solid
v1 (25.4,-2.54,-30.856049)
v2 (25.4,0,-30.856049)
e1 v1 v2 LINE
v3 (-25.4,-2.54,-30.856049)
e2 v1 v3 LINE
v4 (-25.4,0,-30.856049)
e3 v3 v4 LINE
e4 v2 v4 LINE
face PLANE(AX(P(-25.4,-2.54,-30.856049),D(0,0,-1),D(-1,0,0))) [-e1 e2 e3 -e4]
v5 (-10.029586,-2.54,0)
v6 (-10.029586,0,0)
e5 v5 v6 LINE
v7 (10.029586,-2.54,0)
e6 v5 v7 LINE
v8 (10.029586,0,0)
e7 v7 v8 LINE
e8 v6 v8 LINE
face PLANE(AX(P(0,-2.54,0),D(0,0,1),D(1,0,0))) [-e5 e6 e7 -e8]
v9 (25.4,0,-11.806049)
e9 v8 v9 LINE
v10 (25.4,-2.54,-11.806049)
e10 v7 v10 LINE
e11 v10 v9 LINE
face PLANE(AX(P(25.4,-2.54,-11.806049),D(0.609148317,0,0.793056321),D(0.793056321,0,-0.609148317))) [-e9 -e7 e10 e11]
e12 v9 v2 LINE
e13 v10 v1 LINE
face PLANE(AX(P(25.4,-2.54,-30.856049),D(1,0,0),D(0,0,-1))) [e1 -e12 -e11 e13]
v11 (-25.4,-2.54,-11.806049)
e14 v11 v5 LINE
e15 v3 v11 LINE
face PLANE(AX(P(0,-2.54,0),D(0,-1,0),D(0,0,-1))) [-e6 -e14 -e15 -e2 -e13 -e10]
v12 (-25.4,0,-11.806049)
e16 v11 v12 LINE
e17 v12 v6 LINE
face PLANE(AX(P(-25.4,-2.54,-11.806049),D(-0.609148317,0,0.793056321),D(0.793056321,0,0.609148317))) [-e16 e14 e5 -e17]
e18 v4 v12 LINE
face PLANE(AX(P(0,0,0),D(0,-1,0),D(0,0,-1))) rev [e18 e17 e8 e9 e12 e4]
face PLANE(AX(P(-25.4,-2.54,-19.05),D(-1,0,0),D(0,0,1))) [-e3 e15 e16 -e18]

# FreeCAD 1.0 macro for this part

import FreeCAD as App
import Part
import Sketcher
from FreeCAD import Vector
Q = App.Units.Quantity


def add_polygon(sketch, points):
    """Adds a closed chain of lines whose ends are joined by coincident constraints."""
    first, n = sketch.GeometryCount, len(points)
    for a, b in zip(points, points[1:] + points[:1]):
        sketch.addGeometry(Part.LineSegment(App.Vector(*a, 0), App.Vector(*b, 0)), False)
    for i in range(n):
        sketch.addConstraint(Sketcher.Constraint("Coincident", first + i, 2, first + (i + 1) % n, 1))

doc = App.newDocument("Part")
body = doc.addObject("PartDesign::Body", "Body")

# Sketch on XZ plane
sketch1 = doc.addObject("Sketcher::SketchObject", "Sketch")
body.addObject(sketch1)
sketch1.AttachmentSupport = (doc.XZ_Plane, [""])
sketch1.MapMode = "FlatFace"
add_polygon(sketch1, [(-10, 0), (10, 0), (25, -12), (25, -31), (-25, -31), (-25, -12)])  # lines 0-5
sketch1.addConstraint(Sketcher.Constraint("Horizontal", 0))
sketch1.addConstraint(Sketcher.Constraint("Vertical", 2))
sketch1.addConstraint(Sketcher.Constraint("Horizontal", 3))
sketch1.addConstraint(Sketcher.Constraint("Vertical", 4))
sketch1.addConstraint(Sketcher.Constraint("Symmetric", 0, 2, 5, 2, -1, 1))
sketch1.addConstraint(Sketcher.Constraint("Symmetric", 1, 2, 4, 2, -2))
sketch1.addConstraint(Sketcher.Constraint("DistanceX", 3, 2, 3, 1, Q("2 in")))
sketch1.addConstraint(Sketcher.Constraint("DistanceY", 2, 2, 2, 1, Q("0.75 in")))
sketch1.addConstraint(Sketcher.Constraint("Distance", 1, 19.381238))
sketch1.addConstraint(Sketcher.Constraint("DistanceX", 0, 1, 0, 2, 20.059173))
pad1 = doc.addObject("PartDesign::Pad", "Pad")
body.addObject(pad1)
pad1.Profile = sketch1
pad1.Length = Q("0.1 in")

doc.recompute()
